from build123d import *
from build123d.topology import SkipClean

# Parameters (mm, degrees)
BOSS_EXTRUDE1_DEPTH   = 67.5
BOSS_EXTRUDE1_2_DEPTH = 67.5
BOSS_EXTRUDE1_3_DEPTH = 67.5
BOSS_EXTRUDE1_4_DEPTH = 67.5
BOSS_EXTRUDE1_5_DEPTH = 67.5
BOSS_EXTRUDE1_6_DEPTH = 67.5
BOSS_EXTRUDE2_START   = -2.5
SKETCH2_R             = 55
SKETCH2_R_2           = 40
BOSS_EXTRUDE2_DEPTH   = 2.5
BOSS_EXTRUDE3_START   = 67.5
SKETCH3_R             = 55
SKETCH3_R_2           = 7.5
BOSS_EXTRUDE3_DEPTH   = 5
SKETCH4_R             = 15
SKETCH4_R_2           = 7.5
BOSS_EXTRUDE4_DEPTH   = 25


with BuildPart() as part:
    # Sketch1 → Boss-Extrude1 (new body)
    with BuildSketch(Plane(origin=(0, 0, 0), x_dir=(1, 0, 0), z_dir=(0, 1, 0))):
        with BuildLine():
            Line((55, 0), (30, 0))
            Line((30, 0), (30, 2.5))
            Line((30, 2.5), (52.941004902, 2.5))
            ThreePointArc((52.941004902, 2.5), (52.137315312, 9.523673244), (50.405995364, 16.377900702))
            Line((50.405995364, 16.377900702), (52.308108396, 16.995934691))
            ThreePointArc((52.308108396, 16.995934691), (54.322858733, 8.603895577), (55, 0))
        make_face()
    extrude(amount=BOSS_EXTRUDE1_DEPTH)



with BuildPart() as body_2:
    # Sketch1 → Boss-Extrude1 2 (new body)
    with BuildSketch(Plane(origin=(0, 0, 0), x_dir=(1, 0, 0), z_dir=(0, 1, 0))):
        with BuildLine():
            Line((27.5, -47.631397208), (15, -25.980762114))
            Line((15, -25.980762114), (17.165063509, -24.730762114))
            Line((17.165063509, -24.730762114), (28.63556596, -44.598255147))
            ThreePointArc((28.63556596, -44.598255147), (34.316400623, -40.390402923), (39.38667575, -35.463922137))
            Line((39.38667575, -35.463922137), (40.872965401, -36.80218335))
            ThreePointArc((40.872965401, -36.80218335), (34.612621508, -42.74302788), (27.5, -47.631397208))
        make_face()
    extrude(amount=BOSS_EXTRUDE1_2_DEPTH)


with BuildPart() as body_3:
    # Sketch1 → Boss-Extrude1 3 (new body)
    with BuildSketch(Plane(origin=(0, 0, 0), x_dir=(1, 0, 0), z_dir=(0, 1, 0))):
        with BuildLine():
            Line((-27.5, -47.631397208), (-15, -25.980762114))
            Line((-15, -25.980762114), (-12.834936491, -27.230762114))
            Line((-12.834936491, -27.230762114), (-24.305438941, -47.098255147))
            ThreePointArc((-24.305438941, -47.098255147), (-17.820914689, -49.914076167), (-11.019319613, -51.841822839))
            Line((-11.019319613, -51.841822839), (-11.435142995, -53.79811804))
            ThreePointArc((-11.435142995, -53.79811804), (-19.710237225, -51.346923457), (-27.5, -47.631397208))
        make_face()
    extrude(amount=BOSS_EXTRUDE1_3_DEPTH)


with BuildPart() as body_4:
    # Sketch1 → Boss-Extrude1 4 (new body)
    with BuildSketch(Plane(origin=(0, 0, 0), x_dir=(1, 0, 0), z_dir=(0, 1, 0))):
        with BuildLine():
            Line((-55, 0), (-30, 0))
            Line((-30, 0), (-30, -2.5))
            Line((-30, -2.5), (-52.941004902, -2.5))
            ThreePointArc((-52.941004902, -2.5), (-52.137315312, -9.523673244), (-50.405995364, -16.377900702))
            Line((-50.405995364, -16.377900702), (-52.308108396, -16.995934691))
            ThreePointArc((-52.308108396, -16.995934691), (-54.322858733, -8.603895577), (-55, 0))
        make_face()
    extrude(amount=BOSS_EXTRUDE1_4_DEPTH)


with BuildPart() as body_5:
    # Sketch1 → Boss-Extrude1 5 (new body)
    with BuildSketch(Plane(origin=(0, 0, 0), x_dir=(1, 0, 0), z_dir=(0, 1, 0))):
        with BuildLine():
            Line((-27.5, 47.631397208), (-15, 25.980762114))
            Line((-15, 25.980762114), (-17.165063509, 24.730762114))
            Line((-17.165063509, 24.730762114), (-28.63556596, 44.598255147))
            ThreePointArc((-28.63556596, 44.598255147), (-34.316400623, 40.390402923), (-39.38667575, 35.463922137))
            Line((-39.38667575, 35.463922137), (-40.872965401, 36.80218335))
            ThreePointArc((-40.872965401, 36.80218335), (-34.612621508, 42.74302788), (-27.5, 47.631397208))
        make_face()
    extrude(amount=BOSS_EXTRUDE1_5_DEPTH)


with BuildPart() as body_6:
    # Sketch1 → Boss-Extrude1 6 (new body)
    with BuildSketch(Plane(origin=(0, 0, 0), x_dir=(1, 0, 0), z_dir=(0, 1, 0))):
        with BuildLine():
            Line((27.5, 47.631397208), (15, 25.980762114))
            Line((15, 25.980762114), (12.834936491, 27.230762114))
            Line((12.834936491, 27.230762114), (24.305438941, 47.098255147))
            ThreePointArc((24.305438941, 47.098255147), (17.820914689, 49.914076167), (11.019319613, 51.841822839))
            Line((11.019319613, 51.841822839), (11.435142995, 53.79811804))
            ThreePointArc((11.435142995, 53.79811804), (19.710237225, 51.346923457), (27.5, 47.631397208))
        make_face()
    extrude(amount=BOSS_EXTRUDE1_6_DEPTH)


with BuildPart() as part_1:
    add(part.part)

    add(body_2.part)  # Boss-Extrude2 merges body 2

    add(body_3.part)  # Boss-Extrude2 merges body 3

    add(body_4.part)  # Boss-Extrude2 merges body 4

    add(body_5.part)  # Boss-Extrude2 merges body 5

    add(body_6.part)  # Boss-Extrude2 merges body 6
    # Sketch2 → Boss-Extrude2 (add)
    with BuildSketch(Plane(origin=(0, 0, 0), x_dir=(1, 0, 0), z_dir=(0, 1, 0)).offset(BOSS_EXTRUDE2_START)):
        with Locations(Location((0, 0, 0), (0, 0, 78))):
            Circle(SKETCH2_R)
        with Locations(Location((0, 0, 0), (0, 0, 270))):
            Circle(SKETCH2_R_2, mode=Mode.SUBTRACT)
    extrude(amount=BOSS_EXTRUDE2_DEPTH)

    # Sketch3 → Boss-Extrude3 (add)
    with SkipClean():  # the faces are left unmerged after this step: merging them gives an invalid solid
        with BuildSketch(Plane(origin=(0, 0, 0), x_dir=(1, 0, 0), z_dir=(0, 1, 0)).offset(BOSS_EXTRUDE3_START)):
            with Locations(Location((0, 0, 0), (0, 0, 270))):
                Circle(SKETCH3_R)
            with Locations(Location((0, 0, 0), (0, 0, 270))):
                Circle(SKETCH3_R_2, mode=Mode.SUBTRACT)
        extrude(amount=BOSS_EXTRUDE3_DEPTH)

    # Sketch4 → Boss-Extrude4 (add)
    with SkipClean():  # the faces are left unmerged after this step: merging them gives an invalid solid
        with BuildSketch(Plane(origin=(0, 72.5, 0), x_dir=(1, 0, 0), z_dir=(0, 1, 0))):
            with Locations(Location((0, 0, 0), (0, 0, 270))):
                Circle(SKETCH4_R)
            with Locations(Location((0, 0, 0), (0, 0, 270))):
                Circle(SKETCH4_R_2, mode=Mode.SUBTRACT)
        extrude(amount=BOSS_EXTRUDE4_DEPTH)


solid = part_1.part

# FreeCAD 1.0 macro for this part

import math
import FreeCAD as App
import Part
import Sketcher
Q = App.Units.Quantity

doc = App.newDocument("Part")
params = doc.addObject("Spreadsheet::Sheet", "Params")
for row, (alias, value) in enumerate([
    ("sketch1_radius", "55 mm"),
    ("sketch1_radius2", "53 mm"),
    ("sketch1_width", "25 mm"),
    ("sketch1_height", "2.5 mm"),
    ("pad1_length", "67.5 mm"),
    ("sketch2_radius", "55 mm"),
    ("sketch2_radius2", "53 mm"),
    ("sketch2_length", "25 mm"),
    ("sketch2_length2", "2.5 mm"),
    ("pad2_length", "67.5 mm"),
    ("sketch3_radius", "55 mm"),
    ("sketch3_radius2", "53 mm"),
    ("sketch3_length", "25 mm"),
    ("sketch3_length2", "2.5 mm"),
    ("pad3_length", "67.5 mm"),
    ("sketch4_radius", "55 mm"),
    ("sketch4_radius2", "53 mm"),
    ("sketch4_width", "25 mm"),
    ("sketch4_height", "2.5 mm"),
    ("pad4_length", "67.5 mm"),
    ("sketch5_radius", "55 mm"),
    ("sketch5_radius2", "53 mm"),
    ("sketch5_length", "25 mm"),
    ("sketch5_length2", "2.5 mm"),
    ("pad5_length", "67.5 mm"),
    ("sketch6_radius", "55 mm"),
    ("sketch6_radius2", "53 mm"),
    ("sketch6_length", "25 mm"),
    ("sketch6_length2", "2.5 mm"),
    ("pad6_length", "67.5 mm"),
    ("sketch7_diameter", "110 mm"),
    ("sketch7_diameter2", "80 mm"),
    ("pad7_length", "2.5 mm"),
    ("sketch8_diameter", "110 mm"),
    ("sketch8_diameter2", "15 mm"),
    ("pad8_length", "5 mm"),
    ("sketch9_diameter", "30 mm"),
    ("sketch9_diameter2", "15 mm"),
    ("pad9_length", "25 mm"),
], start=1):
    params.set(f"A{row}", alias)
    params.set(f"B{row}", "=" + value)
    params.setAlias(f"B{row}", alias)

body = doc.addObject("PartDesign::Body", "Body")

sketch1 = body.newObject("Sketcher::SketchObject", "Sketch")
sketch1.AttachmentSupport = (doc.getObject("XZ_Plane"), [""])
sketch1.MapMode = "FlatFace"
sketch1.addGeometry([
    Part.LineSegment(App.Vector(30, 0, 0), App.Vector(55, 0, 0)),
    Part.ArcOfCircle(Part.Circle(App.Vector(0, 0, 0), App.Vector(0, 0, 1), 55), math.radians(-18), math.radians(0)),
    Part.LineSegment(App.Vector(52.3, -17, 0), App.Vector(50.4, -16.4, 0)),
    Part.ArcOfCircle(Part.Circle(App.Vector(0, 0, 0), App.Vector(0, 0, 1), 53), math.radians(-18), math.radians(-2.7)),
    Part.LineSegment(App.Vector(52.9, -2.5, 0), App.Vector(30, -2.5, 0)),
    Part.LineSegment(App.Vector(30, -2.5, 0), App.Vector(30, 0, 0)),
], False)
sketch1.addConstraint([
    Sketcher.Constraint("Coincident", 0, 2, 1, 2),
    Sketcher.Constraint("Coincident", 1, 1, 2, 1),
    Sketcher.Constraint("Coincident", 2, 2, 3, 1),
    Sketcher.Constraint("Coincident", 3, 2, 4, 1),
    Sketcher.Constraint("Coincident", 4, 2, 5, 1),
    Sketcher.Constraint("Coincident", 5, 2, 0, 1),
    Sketcher.Constraint("Horizontal", 0),
    Sketcher.Constraint("Horizontal", 4),
    Sketcher.Constraint("Vertical", 5),
    Sketcher.Constraint("Coincident", 1, 3, -1, 1),
    Sketcher.Constraint("Coincident", 3, 3, -1, 1),
    Sketcher.Constraint("PointOnObject", 0, 2, -1),
    Sketcher.Constraint("Radius", 1, 55.0),
    Sketcher.Constraint("Radius", 3, 53.0),
    Sketcher.Constraint("DistanceX", 0, 1, 0, 2, 25.0),
    Sketcher.Constraint("Angle", 2, Q("162 deg")),
    Sketcher.Constraint("DistanceY", 5, 1, 5, 2, 2.5),
    Sketcher.Constraint("DistanceY", 2, 2, -1, 1, 16.377901),
])
sketch1.setExpression("Constraints[12]", "Params.sketch1_radius")
sketch1.setExpression("Constraints[13]", "Params.sketch1_radius2")
sketch1.setExpression("Constraints[14]", "Params.sketch1_width")
sketch1.setExpression("Constraints[16]", "Params.sketch1_height")
pad1 = body.newObject("PartDesign::Pad", "Pad")
pad1.Profile = sketch1
pad1.setExpression("Length", "Params.pad1_length")
pad1.Reversed = True
body2 = doc.addObject("PartDesign::Body", "Body001")

sketch2 = body2.newObject("Sketcher::SketchObject", "Sketch001")
sketch2.AttachmentSupport = (doc.getObject("XZ_Plane001"), [""])
sketch2.MapMode = "FlatFace"
sketch2.addGeometry([
    Part.LineSegment(App.Vector(15, 26, 0), App.Vector(27.5, 47.6, 0)),
    Part.ArcOfCircle(Part.Circle(App.Vector(0, 0, 0), App.Vector(0, 0, 1), 55), math.radians(42), math.radians(60)),
    Part.LineSegment(App.Vector(40.9, 36.8, 0), App.Vector(39.4, 35.5, 0)),
    Part.ArcOfCircle(Part.Circle(App.Vector(0, 0, 0), App.Vector(0, 0, 1), 53), math.radians(42), math.radians(57.3)),
    Part.LineSegment(App.Vector(28.6, 44.6, 0), App.Vector(17.2, 24.7, 0)),
    Part.LineSegment(App.Vector(17.2, 24.7, 0), App.Vector(15, 26, 0)),
], False)
sketch2.addConstraint([
    Sketcher.Constraint("Coincident", 0, 2, 1, 2),
    Sketcher.Constraint("Coincident", 1, 1, 2, 1),
    Sketcher.Constraint("Coincident", 2, 2, 3, 1),
    Sketcher.Constraint("Coincident", 3, 2, 4, 1),
    Sketcher.Constraint("Coincident", 4, 2, 5, 1),
    Sketcher.Constraint("Coincident", 5, 2, 0, 1),
    Sketcher.Constraint("Coincident", 1, 3, -1, 1),
    Sketcher.Constraint("Coincident", 3, 3, -1, 1),
    Sketcher.Constraint("Parallel", 0, 4),
    Sketcher.Constraint("Perpendicular", 4, 5),
    Sketcher.Constraint("Radius", 1, 55.0),
    Sketcher.Constraint("Radius", 3, 53.0),
    Sketcher.Constraint("Angle", 0, Q("60 deg")),
    Sketcher.Constraint("Angle", 2, Q("-138 deg")),
    Sketcher.Constraint("Distance", 0, 25.0),
    Sketcher.Constraint("DistanceX", -1, 1, 5, 2, 15.0),
    Sketcher.Constraint("Distance", 5, 2.5),
    Sketcher.Constraint("DistanceX", 3, 2, 1, 1, 12.237399),
])
sketch2.setExpression("Constraints[10]", "Params.sketch2_radius")
sketch2.setExpression("Constraints[11]", "Params.sketch2_radius2")
sketch2.setExpression("Constraints[14]", "Params.sketch2_length")
sketch2.setExpression("Constraints[16]", "Params.sketch2_length2")
pad2 = body2.newObject("PartDesign::Pad", "Pad001")
pad2.Profile = sketch2
pad2.setExpression("Length", "Params.pad2_length")
pad2.Reversed = True
body3 = doc.addObject("PartDesign::Body", "Body002")

sketch3 = body3.newObject("Sketcher::SketchObject", "Sketch002")
sketch3.AttachmentSupport = (doc.getObject("XZ_Plane002"), [""])
sketch3.MapMode = "FlatFace"
sketch3.addGeometry([
    Part.LineSegment(App.Vector(-15, 26, 0), App.Vector(-27.5, 47.6, 0)),
    Part.ArcOfCircle(Part.Circle(App.Vector(0, 0, 0), App.Vector(0, 0, 1), 55), math.radians(102), math.radians(120)),
    Part.LineSegment(App.Vector(-11.4, 53.8, 0), App.Vector(-11, 51.8, 0)),
    Part.ArcOfCircle(Part.Circle(App.Vector(0, 0, 0), App.Vector(0, 0, 1), 53), math.radians(102), math.radians(117.3)),
    Part.LineSegment(App.Vector(-24.3, 47.1, 0), App.Vector(-12.8, 27.2, 0)),
    Part.LineSegment(App.Vector(-12.8, 27.2, 0), App.Vector(-15, 26, 0)),
], False)
sketch3.addConstraint([
    Sketcher.Constraint("Coincident", 0, 2, 1, 2),
    Sketcher.Constraint("Coincident", 1, 1, 2, 1),
    Sketcher.Constraint("Coincident", 2, 2, 3, 1),
    Sketcher.Constraint("Coincident", 3, 2, 4, 1),
    Sketcher.Constraint("Coincident", 4, 2, 5, 1),
    Sketcher.Constraint("Coincident", 5, 2, 0, 1),
    Sketcher.Constraint("Coincident", 1, 3, -1, 1),
    Sketcher.Constraint("Coincident", 3, 3, -1, 1),
    Sketcher.Constraint("Parallel", 0, 4),
    Sketcher.Constraint("Perpendicular", 4, 5),
    Sketcher.Constraint("Radius", 1, 55.0),
    Sketcher.Constraint("Radius", 3, 53.0),
    Sketcher.Constraint("Angle", 0, Q("120 deg")),
    Sketcher.Constraint("Angle", 2, Q("-78 deg")),
    Sketcher.Constraint("Distance", 0, 25.0),
    Sketcher.Constraint("DistanceX", 5, 2, -1, 1, 15.0),
    Sketcher.Constraint("Distance", 5, 2.5),
    Sketcher.Constraint("DistanceY", -1, 1, 1, 1, 53.798118),
])
sketch3.setExpression("Constraints[10]", "Params.sketch3_radius")
sketch3.setExpression("Constraints[11]", "Params.sketch3_radius2")
sketch3.setExpression("Constraints[14]", "Params.sketch3_length")
sketch3.setExpression("Constraints[16]", "Params.sketch3_length2")
pad3 = body3.newObject("PartDesign::Pad", "Pad002")
pad3.Profile = sketch3
pad3.setExpression("Length", "Params.pad3_length")
pad3.Reversed = True
body4 = doc.addObject("PartDesign::Body", "Body003")

sketch4 = body4.newObject("Sketcher::SketchObject", "Sketch003")
sketch4.AttachmentSupport = (doc.getObject("XZ_Plane003"), [""])
sketch4.MapMode = "FlatFace"
sketch4.addGeometry([
    Part.LineSegment(App.Vector(-30, 0, 0), App.Vector(-55, 0, 0)),
    Part.ArcOfCircle(Part.Circle(App.Vector(0, 0, 0), App.Vector(0, 0, 1), 55), math.radians(162), math.radians(180)),
    Part.LineSegment(App.Vector(-52.3, 17, 0), App.Vector(-50.4, 16.4, 0)),
    Part.ArcOfCircle(Part.Circle(App.Vector(0, 0, 0), App.Vector(0, 0, 1), 53), math.radians(162), math.radians(177.3)),
    Part.LineSegment(App.Vector(-52.9, 2.5, 0), App.Vector(-30, 2.5, 0)),
    Part.LineSegment(App.Vector(-30, 2.5, 0), App.Vector(-30, 0, 0)),
], False)
sketch4.addConstraint([
    Sketcher.Constraint("Coincident", 0, 2, 1, 2),
    Sketcher.Constraint("Coincident", 1, 1, 2, 1),
    Sketcher.Constraint("Coincident", 2, 2, 3, 1),
    Sketcher.Constraint("Coincident", 3, 2, 4, 1),
    Sketcher.Constraint("Coincident", 4, 2, 5, 1),
    Sketcher.Constraint("Coincident", 5, 2, 0, 1),
    Sketcher.Constraint("Horizontal", 0),
    Sketcher.Constraint("Horizontal", 4),
    Sketcher.Constraint("Vertical", 5),
    Sketcher.Constraint("Coincident", 1, 3, -1, 1),
    Sketcher.Constraint("Coincident", 3, 3, -1, 1),
    Sketcher.Constraint("PointOnObject", 0, 2, -1),
    Sketcher.Constraint("Radius", 1, 55.0),
    Sketcher.Constraint("Radius", 3, 53.0),
    Sketcher.Constraint("DistanceX", 0, 2, 0, 1, 25.0),
    Sketcher.Constraint("Angle", 2, Q("-18 deg")),
    Sketcher.Constraint("DistanceY", 5, 2, 5, 1, 2.5),
    Sketcher.Constraint("DistanceY", -1, 1, 2, 2, 16.377901),
])
sketch4.setExpression("Constraints[12]", "Params.sketch4_radius")
sketch4.setExpression("Constraints[13]", "Params.sketch4_radius2")
sketch4.setExpression("Constraints[14]", "Params.sketch4_width")
sketch4.setExpression("Constraints[16]", "Params.sketch4_height")
pad4 = body4.newObject("PartDesign::Pad", "Pad003")
pad4.Profile = sketch4
pad4.setExpression("Length", "Params.pad4_length")
pad4.Reversed = True
body5 = doc.addObject("PartDesign::Body", "Body004")

sketch5 = body5.newObject("Sketcher::SketchObject", "Sketch004")
sketch5.AttachmentSupport = (doc.getObject("XZ_Plane004"), [""])
sketch5.MapMode = "FlatFace"
sketch5.addGeometry([
    Part.LineSegment(App.Vector(-15, -26, 0), App.Vector(-27.5, -47.6, 0)),
    Part.ArcOfCircle(Part.Circle(App.Vector(0, 0, 0), App.Vector(0, 0, 1), 55), math.radians(-138), math.radians(-120)),
    Part.LineSegment(App.Vector(-40.9, -36.8, 0), App.Vector(-39.4, -35.5, 0)),
    Part.ArcOfCircle(Part.Circle(App.Vector(0, 0, 0), App.Vector(0, 0, 1), 53), math.radians(-138), math.radians(-122.7)),
    Part.LineSegment(App.Vector(-28.6, -44.6, 0), App.Vector(-17.2, -24.7, 0)),
    Part.LineSegment(App.Vector(-17.2, -24.7, 0), App.Vector(-15, -26, 0)),
], False)
sketch5.addConstraint([
    Sketcher.Constraint("Coincident", 0, 2, 1, 2),
    Sketcher.Constraint("Coincident", 1, 1, 2, 1),
    Sketcher.Constraint("Coincident", 2, 2, 3, 1),
    Sketcher.Constraint("Coincident", 3, 2, 4, 1),
    Sketcher.Constraint("Coincident", 4, 2, 5, 1),
    Sketcher.Constraint("Coincident", 5, 2, 0, 1),
    Sketcher.Constraint("Coincident", 1, 3, -1, 1),
    Sketcher.Constraint("Coincident", 3, 3, -1, 1),
    Sketcher.Constraint("Parallel", 0, 4),
    Sketcher.Constraint("Perpendicular", 4, 5),
    Sketcher.Constraint("Radius", 1, 55.0),
    Sketcher.Constraint("Radius", 3, 53.0),
    Sketcher.Constraint("Angle", 0, Q("-120 deg")),
    Sketcher.Constraint("Angle", 2, Q("42 deg")),
    Sketcher.Constraint("Distance", 0, 25.0),
    Sketcher.Constraint("DistanceX", 5, 2, -1, 1, 15.0),
    Sketcher.Constraint("Distance", 5, 2.5),
    Sketcher.Constraint("DistanceX", 1, 1, 3, 2, 12.237399),
])
sketch5.setExpression("Constraints[10]", "Params.sketch5_radius")
sketch5.setExpression("Constraints[11]", "Params.sketch5_radius2")
sketch5.setExpression("Constraints[14]", "Params.sketch5_length")
sketch5.setExpression("Constraints[16]", "Params.sketch5_length2")
pad5 = body5.newObject("PartDesign::Pad", "Pad004")
pad5.Profile = sketch5
pad5.setExpression("Length", "Params.pad5_length")
pad5.Reversed = True
body6 = doc.addObject("PartDesign::Body", "Body005")

sketch6 = body6.newObject("Sketcher::SketchObject", "Sketch005")
sketch6.AttachmentSupport = (doc.getObject("XZ_Plane005"), [""])
sketch6.MapMode = "FlatFace"
sketch6.addGeometry([
    Part.LineSegment(App.Vector(15, -26, 0), App.Vector(27.5, -47.6, 0)),
    Part.ArcOfCircle(Part.Circle(App.Vector(0, 0, 0), App.Vector(0, 0, 1), 55), math.radians(-78), math.radians(-60)),
    Part.LineSegment(App.Vector(11.4, -53.8, 0), App.Vector(11, -51.8, 0)),
    Part.ArcOfCircle(Part.Circle(App.Vector(0, 0, 0), App.Vector(0, 0, 1), 53), math.radians(-78), math.radians(-62.7)),
    Part.LineSegment(App.Vector(24.3, -47.1, 0), App.Vector(12.8, -27.2, 0)),
    Part.LineSegment(App.Vector(12.8, -27.2, 0), App.Vector(15, -26, 0)),
], False)
sketch6.addConstraint([
    Sketcher.Constraint("Coincident", 0, 2, 1, 2),
    Sketcher.Constraint("Coincident", 1, 1, 2, 1),
    Sketcher.Constraint("Coincident", 2, 2, 3, 1),
    Sketcher.Constraint("Coincident", 3, 2, 4, 1),
    Sketcher.Constraint("Coincident", 4, 2, 5, 1),
    Sketcher.Constraint("Coincident", 5, 2, 0, 1),
    Sketcher.Constraint("Coincident", 1, 3, -1, 1),
    Sketcher.Constraint("Coincident", 3, 3, -1, 1),
    Sketcher.Constraint("Parallel", 0, 4),
    Sketcher.Constraint("Perpendicular", 4, 5),
    Sketcher.Constraint("Radius", 1, 55.0),
    Sketcher.Constraint("Radius", 3, 53.0),
    Sketcher.Constraint("Angle", 0, Q("-60 deg")),
    Sketcher.Constraint("Angle", 2, Q("102 deg")),
    Sketcher.Constraint("Distance", 0, 25.0),
    Sketcher.Constraint("DistanceX", -1, 1, 5, 2, 15.0),
    Sketcher.Constraint("Distance", 5, 2.5),
    Sketcher.Constraint("DistanceY", 1, 1, -1, 1, 53.798118),
])
sketch6.setExpression("Constraints[10]", "Params.sketch6_radius")
sketch6.setExpression("Constraints[11]", "Params.sketch6_radius2")
sketch6.setExpression("Constraints[14]", "Params.sketch6_length")
sketch6.setExpression("Constraints[16]", "Params.sketch6_length2")
pad6 = body6.newObject("PartDesign::Pad", "Pad005")
pad6.Profile = sketch6
pad6.setExpression("Length", "Params.pad6_length")
pad6.Reversed = True
body.AllowCompound = True
doc.recompute()

boolean = body.newObject("PartDesign::Boolean", "Boolean")
boolean.Type = "Fuse"
boolean.addObjects([body2])
doc.recompute()

boolean2 = body.newObject("PartDesign::Boolean", "Boolean001")
boolean2.Type = "Fuse"
boolean2.addObjects([body3])
doc.recompute()

boolean3 = body.newObject("PartDesign::Boolean", "Boolean002")
boolean3.Type = "Fuse"
boolean3.addObjects([body4])
doc.recompute()

boolean4 = body.newObject("PartDesign::Boolean", "Boolean003")
boolean4.Type = "Fuse"
boolean4.addObjects([body5])
doc.recompute()

boolean5 = body.newObject("PartDesign::Boolean", "Boolean004")
boolean5.Type = "Fuse"
boolean5.addObjects([body6])

sketch7 = body.newObject("Sketcher::SketchObject", "Sketch006")
sketch7.AttachmentSupport = (doc.getObject("XZ_Plane"), [""])
sketch7.MapMode = "FlatFace"
sketch7.AttachmentOffset = App.Placement(App.Vector(0, 0, 2.5), App.Rotation())
sketch7.addGeometry([
    Part.Circle(App.Vector(0, 0, 0), App.Vector(0, 0, 1), 55),
    Part.Circle(App.Vector(0, 0, 0), App.Vector(0, 0, 1), 40),
], False)
sketch7.addConstraint([
    Sketcher.Constraint("Coincident", 0, 3, -1, 1),
    Sketcher.Constraint("Coincident", 1, 3, -1, 1),
    Sketcher.Constraint("Diameter", 0, 110.0),
    Sketcher.Constraint("Diameter", 1, 80.0),
])
sketch7.setExpression("Constraints[2]", "Params.sketch7_diameter")
sketch7.setExpression("Constraints[3]", "Params.sketch7_diameter2")
pad7 = body.newObject("PartDesign::Pad", "Pad006")
pad7.Profile = sketch7
pad7.setExpression("Length", "Params.pad7_length")
pad7.Reversed = True

sketch8 = body.newObject("Sketcher::SketchObject", "Sketch007")
sketch8.AttachmentSupport = (doc.getObject("XZ_Plane"), [""])
sketch8.MapMode = "FlatFace"
sketch8.AttachmentOffset = App.Placement(App.Vector(0, 0, -67.5), App.Rotation())
sketch8.addGeometry([
    Part.Circle(App.Vector(0, 0, 0), App.Vector(0, 0, 1), 55),
    Part.Circle(App.Vector(0, 0, 0), App.Vector(0, 0, 1), 8),
], False)
sketch8.addConstraint([
    Sketcher.Constraint("Coincident", 0, 3, -1, 1),
    Sketcher.Constraint("Coincident", 1, 3, -1, 1),
    Sketcher.Constraint("Diameter", 0, 110.0),
    Sketcher.Constraint("Diameter", 1, 15.0),
])
sketch8.setExpression("Constraints[2]", "Params.sketch8_diameter")
sketch8.setExpression("Constraints[3]", "Params.sketch8_diameter2")
pad8 = body.newObject("PartDesign::Pad", "Pad007")
pad8.Profile = sketch8
pad8.setExpression("Length", "Params.pad8_length")
pad8.Reversed = True

sketch9 = body.newObject("Sketcher::SketchObject", "Sketch008")
sketch9.AttachmentSupport = (doc.getObject("XZ_Plane"), [""])
sketch9.MapMode = "FlatFace"
sketch9.AttachmentOffset = App.Placement(App.Vector(0, 0, -72.5), App.Rotation())
sketch9.addGeometry([
    Part.Circle(App.Vector(0, 0, 0), App.Vector(0, 0, 1), 15),
    Part.Circle(App.Vector(0, 0, 0), App.Vector(0, 0, 1), 8),
], False)
sketch9.addConstraint([
    Sketcher.Constraint("Coincident", 0, 3, -1, 1),
    Sketcher.Constraint("Coincident", 1, 3, -1, 1),
    Sketcher.Constraint("Diameter", 0, 30.0),
    Sketcher.Constraint("Diameter", 1, 15.0),
])
sketch9.setExpression("Constraints[2]", "Params.sketch9_diameter")
sketch9.setExpression("Constraints[3]", "Params.sketch9_diameter2")
pad9 = body.newObject("PartDesign::Pad", "Pad008")
pad9.Profile = sketch9
pad9.setExpression("Length", "Params.pad9_length")
pad9.Reversed = True

doc.recompute()
